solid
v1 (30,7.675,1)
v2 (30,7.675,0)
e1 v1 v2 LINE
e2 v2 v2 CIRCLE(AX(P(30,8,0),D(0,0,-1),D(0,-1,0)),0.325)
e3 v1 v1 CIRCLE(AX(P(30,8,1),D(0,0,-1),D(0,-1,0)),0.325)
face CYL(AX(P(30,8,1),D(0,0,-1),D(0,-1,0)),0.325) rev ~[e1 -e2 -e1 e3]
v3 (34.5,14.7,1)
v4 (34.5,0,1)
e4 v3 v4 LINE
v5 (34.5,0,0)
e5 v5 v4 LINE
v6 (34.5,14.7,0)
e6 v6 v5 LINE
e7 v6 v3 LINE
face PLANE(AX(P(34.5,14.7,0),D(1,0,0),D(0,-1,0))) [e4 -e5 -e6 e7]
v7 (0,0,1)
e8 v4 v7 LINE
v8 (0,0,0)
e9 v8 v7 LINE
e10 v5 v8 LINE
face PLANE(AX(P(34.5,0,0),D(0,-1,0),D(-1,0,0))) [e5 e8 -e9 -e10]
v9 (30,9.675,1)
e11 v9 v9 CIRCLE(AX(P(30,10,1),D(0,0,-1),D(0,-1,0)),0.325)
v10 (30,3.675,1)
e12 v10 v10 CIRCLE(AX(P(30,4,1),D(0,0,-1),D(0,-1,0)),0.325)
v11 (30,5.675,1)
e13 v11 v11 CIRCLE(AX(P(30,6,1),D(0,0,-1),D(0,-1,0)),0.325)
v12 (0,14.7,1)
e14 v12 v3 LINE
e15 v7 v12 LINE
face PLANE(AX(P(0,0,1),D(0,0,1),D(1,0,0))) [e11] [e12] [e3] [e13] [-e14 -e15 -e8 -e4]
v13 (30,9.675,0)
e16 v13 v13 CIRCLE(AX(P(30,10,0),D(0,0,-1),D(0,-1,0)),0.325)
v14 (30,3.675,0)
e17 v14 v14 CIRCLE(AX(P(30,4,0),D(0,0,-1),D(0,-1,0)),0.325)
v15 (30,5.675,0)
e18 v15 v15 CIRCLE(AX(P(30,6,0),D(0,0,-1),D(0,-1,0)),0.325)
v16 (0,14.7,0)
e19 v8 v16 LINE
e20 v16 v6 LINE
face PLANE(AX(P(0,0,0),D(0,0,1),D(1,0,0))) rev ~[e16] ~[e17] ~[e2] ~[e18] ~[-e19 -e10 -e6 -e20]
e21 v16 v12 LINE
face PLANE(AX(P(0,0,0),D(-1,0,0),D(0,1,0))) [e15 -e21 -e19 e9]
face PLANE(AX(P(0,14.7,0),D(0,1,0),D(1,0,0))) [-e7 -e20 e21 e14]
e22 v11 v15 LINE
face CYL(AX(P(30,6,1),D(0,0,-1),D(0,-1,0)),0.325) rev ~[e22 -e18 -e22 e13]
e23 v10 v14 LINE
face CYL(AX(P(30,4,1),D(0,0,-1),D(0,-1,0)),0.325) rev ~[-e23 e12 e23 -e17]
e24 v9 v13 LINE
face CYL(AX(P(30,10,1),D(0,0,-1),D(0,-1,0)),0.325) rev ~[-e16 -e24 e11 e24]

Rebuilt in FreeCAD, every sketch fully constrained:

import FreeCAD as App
import Part
import Sketcher

doc = App.newDocument("Part")
body = doc.addObject("PartDesign::Body", "Body")

# Sketch on XY plane
sketch1 = doc.addObject("Sketcher::SketchObject", "Sketch")
body.addObject(sketch1)
sketch1.AttachmentSupport = (doc.XY_Plane, [""])
sketch1.MapMode = "FlatFace"
sketch1.addGeometry(Part.LineSegment(App.Vector(0, 14.7, 0), App.Vector(0, 0, 0)), False)
sketch1.addGeometry(Part.LineSegment(App.Vector(0, 0, 0), App.Vector(34.5, 0, 0)), False)
sketch1.addGeometry(Part.LineSegment(App.Vector(34.5, 0, 0), App.Vector(34.5, 14.7, 0)), False)
sketch1.addGeometry(Part.LineSegment(App.Vector(34.5, 14.7, 0), App.Vector(0, 14.7, 0)), False)
sketch1.addConstraint(Sketcher.Constraint("Coincident", 0, 2, 1, 1))
sketch1.addConstraint(Sketcher.Constraint("Coincident", 1, 2, 2, 1))
sketch1.addConstraint(Sketcher.Constraint("Coincident", 2, 2, 3, 1))
sketch1.addConstraint(Sketcher.Constraint("Coincident", 3, 2, 0, 1))
sketch1.addConstraint(Sketcher.Constraint("Vertical", 0))
sketch1.addConstraint(Sketcher.Constraint("Horizontal", 1))
sketch1.addConstraint(Sketcher.Constraint("Vertical", 2))
sketch1.addConstraint(Sketcher.Constraint("Horizontal", 3))
sketch1.addConstraint(Sketcher.Constraint("Coincident", 0, 2, -1, 1))
sketch1.addConstraint(Sketcher.Constraint("DistanceX", 1, 1, 1, 2, 34.5))
sketch1.addConstraint(Sketcher.Constraint("DistanceY", 0, 2, 0, 1, 14.7))
pad1 = doc.addObject("PartDesign::Pad", "Pad")
body.addObject(pad1)
pad1.Profile = sketch1
pad1.Length = 1

# Sketch on XY plane
sketch2 = doc.addObject("Sketcher::SketchObject", "Sketch001")
body.addObject(sketch2)
sketch2.AttachmentSupport = (doc.XY_Plane, [""])
sketch2.MapMode = "FlatFace"
sketch2.AttachmentOffset = App.Placement(App.Vector(0, 0, 1), App.Rotation())
sketch2.addGeometry(Part.Circle(App.Vector(30, 10, 0), App.Vector(0, 0, 1), 0.325), False)
sketch2.addGeometry(Part.Circle(App.Vector(30, 8, 0), App.Vector(0, 0, 1), 0.325), False)
sketch2.addGeometry(Part.Circle(App.Vector(30, 6, 0), App.Vector(0, 0, 1), 0.325), False)
sketch2.addGeometry(Part.Circle(App.Vector(30, 4, 0), App.Vector(0, 0, 1), 0.325), False)
sketch2.addConstraint(Sketcher.Constraint("Equal", 0, 1))
sketch2.addConstraint(Sketcher.Constraint("Equal", 1, 2))
sketch2.addConstraint(Sketcher.Constraint("Equal", 2, 3))
sketch2.addConstraint(Sketcher.Constraint("Vertical", 0, 3, 1, 3))
sketch2.addConstraint(Sketcher.Constraint("Vertical", 1, 3, 2, 3))
sketch2.addConstraint(Sketcher.Constraint("Vertical", 2, 3, 3, 3))
sketch2.addConstraint(Sketcher.Constraint("Diameter", 0, 0.65))
sketch2.addConstraint(Sketcher.Constraint("DistanceX", -1, 1, 0, 3, 30.0))
sketch2.addConstraint(Sketcher.Constraint("DistanceY", -1, 1, 0, 3, 10.0))
sketch2.addConstraint(Sketcher.Constraint("DistanceY", -1, 1, 1, 3, 8.0))
sketch2.addConstraint(Sketcher.Constraint("DistanceY", -1, 1, 2, 3, 6.0))
sketch2.addConstraint(Sketcher.Constraint("DistanceY", -1, 1, 3, 3, 4.0))
doc.recompute()
hole = doc.addObject("PartDesign::Hole", "Hole")
body.addObject(hole)
hole.Profile = sketch2
hole.ThreadType = "None"
hole.Diameter = 0.65
hole.DepthType = "ThroughAll"

doc.recompute()
